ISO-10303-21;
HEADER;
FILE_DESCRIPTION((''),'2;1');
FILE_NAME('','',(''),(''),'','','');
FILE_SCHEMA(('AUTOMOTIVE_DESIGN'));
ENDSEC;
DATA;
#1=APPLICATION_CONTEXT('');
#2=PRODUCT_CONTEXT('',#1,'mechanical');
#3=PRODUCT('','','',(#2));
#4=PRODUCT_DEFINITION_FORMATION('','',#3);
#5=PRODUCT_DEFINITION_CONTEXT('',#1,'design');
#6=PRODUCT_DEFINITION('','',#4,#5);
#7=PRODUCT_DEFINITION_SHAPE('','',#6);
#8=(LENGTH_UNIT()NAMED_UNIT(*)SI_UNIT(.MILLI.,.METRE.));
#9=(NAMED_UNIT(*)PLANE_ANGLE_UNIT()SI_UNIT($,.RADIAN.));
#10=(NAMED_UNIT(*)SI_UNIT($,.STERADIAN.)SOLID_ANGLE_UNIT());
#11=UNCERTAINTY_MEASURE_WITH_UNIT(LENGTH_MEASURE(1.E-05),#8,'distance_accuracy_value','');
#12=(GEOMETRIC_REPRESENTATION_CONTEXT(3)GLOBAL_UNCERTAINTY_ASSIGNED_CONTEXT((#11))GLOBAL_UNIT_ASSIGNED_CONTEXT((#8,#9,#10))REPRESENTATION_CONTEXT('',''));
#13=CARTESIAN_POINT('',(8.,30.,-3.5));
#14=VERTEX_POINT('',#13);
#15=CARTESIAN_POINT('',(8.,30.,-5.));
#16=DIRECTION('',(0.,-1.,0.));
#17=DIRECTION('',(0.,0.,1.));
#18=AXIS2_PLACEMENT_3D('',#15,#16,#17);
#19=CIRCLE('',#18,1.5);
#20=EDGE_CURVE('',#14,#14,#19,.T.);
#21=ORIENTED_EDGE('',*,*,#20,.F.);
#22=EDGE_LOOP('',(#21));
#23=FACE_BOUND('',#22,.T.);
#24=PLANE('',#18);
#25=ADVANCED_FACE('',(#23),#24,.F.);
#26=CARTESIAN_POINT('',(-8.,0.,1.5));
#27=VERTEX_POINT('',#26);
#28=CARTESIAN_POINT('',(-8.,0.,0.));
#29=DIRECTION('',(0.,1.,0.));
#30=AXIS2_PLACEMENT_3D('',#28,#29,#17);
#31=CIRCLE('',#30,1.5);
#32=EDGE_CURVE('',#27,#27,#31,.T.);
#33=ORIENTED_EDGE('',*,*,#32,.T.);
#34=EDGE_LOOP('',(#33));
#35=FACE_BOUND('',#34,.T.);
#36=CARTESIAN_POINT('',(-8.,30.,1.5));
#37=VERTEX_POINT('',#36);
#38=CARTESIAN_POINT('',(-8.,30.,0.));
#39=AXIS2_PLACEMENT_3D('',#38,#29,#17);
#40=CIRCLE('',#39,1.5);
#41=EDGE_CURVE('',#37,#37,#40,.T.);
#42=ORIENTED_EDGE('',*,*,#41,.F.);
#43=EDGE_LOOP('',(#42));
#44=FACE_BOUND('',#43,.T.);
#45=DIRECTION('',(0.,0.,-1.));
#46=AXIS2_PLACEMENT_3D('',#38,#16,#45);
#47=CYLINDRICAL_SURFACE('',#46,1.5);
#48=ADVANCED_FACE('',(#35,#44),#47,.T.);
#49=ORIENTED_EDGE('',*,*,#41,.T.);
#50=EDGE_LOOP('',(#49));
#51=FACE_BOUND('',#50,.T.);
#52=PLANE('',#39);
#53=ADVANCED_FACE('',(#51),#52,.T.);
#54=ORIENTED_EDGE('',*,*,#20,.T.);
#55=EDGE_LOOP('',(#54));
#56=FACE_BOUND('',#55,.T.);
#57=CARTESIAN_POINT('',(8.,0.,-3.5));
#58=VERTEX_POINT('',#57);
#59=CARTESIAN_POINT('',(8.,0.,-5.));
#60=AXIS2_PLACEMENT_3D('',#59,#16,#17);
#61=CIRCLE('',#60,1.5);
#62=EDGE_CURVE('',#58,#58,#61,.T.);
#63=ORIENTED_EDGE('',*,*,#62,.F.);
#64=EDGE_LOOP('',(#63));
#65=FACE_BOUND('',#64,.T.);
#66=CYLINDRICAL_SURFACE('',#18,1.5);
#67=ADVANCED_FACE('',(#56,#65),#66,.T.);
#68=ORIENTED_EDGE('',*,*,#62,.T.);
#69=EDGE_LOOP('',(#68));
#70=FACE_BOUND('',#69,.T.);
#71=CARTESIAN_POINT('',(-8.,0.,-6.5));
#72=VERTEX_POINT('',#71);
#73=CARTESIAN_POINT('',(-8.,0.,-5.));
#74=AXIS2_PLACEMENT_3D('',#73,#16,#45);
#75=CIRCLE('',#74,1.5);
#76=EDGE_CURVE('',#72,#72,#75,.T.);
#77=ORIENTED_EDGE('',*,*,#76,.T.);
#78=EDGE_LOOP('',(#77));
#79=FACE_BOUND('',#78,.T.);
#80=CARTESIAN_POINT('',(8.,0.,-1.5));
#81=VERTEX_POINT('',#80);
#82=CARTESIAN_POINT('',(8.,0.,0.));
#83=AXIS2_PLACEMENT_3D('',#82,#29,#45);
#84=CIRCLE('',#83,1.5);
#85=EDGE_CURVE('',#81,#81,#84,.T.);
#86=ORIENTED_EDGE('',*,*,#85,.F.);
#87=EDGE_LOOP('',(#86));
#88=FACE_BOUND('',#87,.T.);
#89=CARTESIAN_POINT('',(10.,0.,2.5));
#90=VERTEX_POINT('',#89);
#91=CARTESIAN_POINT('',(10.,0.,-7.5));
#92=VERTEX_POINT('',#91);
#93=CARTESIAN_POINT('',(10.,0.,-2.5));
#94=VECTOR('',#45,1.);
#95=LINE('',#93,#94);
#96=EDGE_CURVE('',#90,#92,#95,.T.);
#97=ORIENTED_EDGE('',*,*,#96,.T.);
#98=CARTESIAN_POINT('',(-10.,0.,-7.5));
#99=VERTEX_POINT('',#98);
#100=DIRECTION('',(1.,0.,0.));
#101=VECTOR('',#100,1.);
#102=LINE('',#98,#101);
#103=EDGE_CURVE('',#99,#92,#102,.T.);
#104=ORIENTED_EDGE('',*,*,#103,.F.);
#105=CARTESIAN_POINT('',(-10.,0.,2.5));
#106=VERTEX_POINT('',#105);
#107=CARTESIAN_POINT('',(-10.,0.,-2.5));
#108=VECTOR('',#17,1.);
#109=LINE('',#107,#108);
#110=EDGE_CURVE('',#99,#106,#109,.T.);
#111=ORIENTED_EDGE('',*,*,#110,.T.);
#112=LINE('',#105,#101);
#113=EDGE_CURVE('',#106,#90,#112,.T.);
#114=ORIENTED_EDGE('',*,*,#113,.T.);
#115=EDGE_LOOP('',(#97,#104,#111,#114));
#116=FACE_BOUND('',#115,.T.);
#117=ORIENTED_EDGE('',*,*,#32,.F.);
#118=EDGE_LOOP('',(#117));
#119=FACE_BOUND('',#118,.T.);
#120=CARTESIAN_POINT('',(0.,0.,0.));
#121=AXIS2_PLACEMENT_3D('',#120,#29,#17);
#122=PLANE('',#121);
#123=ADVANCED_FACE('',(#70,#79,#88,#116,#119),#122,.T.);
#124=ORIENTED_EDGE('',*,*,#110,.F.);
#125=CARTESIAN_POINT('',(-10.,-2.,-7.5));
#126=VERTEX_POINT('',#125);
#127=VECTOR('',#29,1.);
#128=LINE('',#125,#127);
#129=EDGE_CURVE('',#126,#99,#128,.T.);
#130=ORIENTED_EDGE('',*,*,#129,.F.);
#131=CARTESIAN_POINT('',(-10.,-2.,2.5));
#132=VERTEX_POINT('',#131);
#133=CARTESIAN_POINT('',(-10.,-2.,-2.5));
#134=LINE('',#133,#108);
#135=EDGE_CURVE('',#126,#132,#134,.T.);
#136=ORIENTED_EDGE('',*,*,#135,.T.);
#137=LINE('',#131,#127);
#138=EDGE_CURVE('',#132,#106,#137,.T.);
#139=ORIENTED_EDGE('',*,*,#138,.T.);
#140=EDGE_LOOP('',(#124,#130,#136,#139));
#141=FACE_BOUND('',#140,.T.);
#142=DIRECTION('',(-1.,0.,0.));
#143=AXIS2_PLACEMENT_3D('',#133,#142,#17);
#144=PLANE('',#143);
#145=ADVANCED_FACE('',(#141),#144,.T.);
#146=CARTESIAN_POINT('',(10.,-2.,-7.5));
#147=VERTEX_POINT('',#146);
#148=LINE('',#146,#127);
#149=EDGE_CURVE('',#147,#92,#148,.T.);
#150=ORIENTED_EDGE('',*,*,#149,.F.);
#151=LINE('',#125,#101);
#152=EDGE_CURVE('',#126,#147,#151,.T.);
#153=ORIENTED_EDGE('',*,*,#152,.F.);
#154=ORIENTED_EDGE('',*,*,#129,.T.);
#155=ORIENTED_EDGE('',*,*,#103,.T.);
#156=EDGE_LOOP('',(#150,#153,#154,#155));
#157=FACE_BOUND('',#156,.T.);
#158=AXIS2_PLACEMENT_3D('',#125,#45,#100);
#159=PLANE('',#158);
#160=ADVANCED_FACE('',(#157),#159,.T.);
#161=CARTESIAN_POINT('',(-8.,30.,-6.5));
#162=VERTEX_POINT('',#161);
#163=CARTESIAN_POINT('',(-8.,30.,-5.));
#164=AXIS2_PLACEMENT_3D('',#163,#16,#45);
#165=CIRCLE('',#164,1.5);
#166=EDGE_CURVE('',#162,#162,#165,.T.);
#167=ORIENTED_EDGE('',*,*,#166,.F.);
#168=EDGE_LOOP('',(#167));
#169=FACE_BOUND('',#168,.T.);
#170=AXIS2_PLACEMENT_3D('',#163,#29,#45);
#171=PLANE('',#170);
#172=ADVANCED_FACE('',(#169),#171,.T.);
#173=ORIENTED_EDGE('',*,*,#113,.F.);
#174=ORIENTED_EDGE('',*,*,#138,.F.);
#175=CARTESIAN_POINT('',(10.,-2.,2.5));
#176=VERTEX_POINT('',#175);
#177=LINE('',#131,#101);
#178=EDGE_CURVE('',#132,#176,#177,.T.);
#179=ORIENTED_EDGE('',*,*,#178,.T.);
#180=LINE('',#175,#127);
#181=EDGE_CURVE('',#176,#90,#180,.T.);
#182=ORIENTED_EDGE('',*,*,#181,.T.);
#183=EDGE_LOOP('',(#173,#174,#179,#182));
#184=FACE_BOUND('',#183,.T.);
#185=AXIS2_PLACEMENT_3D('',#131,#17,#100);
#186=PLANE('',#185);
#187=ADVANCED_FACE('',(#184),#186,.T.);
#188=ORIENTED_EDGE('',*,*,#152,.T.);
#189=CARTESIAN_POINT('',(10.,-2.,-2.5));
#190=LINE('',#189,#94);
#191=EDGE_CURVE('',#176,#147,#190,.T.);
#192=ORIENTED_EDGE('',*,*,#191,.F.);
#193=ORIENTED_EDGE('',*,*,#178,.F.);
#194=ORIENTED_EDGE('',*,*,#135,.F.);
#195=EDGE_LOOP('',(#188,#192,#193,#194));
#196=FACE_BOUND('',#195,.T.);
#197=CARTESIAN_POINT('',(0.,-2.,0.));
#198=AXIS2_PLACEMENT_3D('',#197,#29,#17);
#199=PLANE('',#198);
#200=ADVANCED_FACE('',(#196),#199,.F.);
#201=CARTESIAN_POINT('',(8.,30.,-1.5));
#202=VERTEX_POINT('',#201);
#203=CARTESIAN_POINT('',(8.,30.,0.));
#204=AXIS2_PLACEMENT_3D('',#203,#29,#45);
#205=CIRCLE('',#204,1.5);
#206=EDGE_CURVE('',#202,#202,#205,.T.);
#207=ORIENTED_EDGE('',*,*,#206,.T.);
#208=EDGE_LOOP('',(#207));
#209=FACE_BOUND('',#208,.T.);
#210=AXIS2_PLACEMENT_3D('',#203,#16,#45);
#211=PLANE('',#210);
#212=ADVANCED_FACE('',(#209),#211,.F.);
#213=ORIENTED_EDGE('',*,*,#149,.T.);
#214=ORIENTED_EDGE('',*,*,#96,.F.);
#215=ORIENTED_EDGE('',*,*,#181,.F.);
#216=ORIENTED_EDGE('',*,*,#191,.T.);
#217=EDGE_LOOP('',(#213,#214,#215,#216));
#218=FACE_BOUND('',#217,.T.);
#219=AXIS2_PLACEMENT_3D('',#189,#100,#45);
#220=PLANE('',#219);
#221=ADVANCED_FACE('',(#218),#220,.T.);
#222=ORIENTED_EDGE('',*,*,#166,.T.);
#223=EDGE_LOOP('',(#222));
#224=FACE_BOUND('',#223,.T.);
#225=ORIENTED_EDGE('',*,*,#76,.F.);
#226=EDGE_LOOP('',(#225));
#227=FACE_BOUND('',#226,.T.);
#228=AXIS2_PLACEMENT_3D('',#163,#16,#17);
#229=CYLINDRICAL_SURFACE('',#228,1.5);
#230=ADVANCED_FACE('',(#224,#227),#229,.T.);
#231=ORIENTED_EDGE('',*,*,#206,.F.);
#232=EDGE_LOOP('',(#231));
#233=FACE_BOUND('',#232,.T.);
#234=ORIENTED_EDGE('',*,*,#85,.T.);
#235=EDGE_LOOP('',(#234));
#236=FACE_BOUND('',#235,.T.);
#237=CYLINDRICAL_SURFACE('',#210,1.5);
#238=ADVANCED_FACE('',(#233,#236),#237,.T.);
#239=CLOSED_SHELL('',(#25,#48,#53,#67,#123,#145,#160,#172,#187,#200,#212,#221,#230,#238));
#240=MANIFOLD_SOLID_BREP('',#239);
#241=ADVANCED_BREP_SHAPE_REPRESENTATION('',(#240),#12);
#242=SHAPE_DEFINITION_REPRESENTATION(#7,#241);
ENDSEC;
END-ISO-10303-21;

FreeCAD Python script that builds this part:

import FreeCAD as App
import Part
import Sketcher
from FreeCAD import Vector
Q = App.Units.Quantity

doc = App.newDocument("Part")
body = doc.addObject("PartDesign::Body", "Body")

# Sketch on XZ plane
sketch1 = doc.addObject("Sketcher::SketchObject", "Sketch")
body.addObject(sketch1)
sketch1.AttachmentSupport = (doc.XZ_Plane, [""])
sketch1.MapMode = "FlatFace"
sketch1.addGeometry(Part.LineSegment(Vector(-10, -2, 0), Vector(-10, 2, 0)), False)
sketch1.addGeometry(Part.LineSegment(Vector(-10, 2, 0), Vector(10, 2, 0)), False)
sketch1.addGeometry(Part.LineSegment(Vector(10, 2, 0), Vector(10, -2, 0)), False)
sketch1.addGeometry(Part.LineSegment(Vector(10, -2, 0), Vector(-10, -2, 0)), False)
sketch1.addConstraint(Sketcher.Constraint("Coincident", 0, 2, 1, 1))
sketch1.addConstraint(Sketcher.Constraint("Coincident", 1, 2, 2, 1))
sketch1.addConstraint(Sketcher.Constraint("Coincident", 2, 2, 3, 1))
sketch1.addConstraint(Sketcher.Constraint("Coincident", 3, 2, 0, 1))
sketch1.addConstraint(Sketcher.Constraint("Vertical", 0))
sketch1.addConstraint(Sketcher.Constraint("Horizontal", 1))
sketch1.addConstraint(Sketcher.Constraint("Vertical", 2))
sketch1.addConstraint(Sketcher.Constraint("Horizontal", 3))
sketch1.addConstraint(Sketcher.Constraint("Symmetric", 0, 2, 2, 2, -1, 1))
sketch1.addConstraint(Sketcher.Constraint("DistanceX", 1, 1, 1, 2, Q("20 mm")))
sketch1.addConstraint(Sketcher.Constraint("DistanceY", 0, 1, 0, 2, Q("5 mm")))
pad1 = doc.addObject("PartDesign::Pad", "Pad")
body.addObject(pad1)
pad1.Profile = sketch1
pad1.Length = 2

# Sketch on XZ plane
sketch2 = doc.addObject("Sketcher::SketchObject", "Sketch001")
body.addObject(sketch2)
sketch2.AttachmentSupport = (doc.XZ_Plane, [""])
sketch2.MapMode = "FlatFace"
sketch2.addGeometry(Part.Circle(Vector(-8, 0, 0), Vector(0, 0, 1), 1.5), False)
sketch2.addGeometry(Part.Circle(Vector(8, 0, 0), Vector(0, 0, 1), 1.5), False)
sketch2.addConstraint(Sketcher.Constraint("Equal", 0, 1))
sketch2.addConstraint(Sketcher.Constraint("Symmetric", 0, 3, 1, 3, -1, 1))
sketch2.addConstraint(Sketcher.Constraint("PointOnObject", 0, 3, -1))
sketch2.addConstraint(Sketcher.Constraint("Diameter", 0, Q("3 mm")))
sketch2.addConstraint(Sketcher.Constraint("DistanceX", 0, 3, -1, 1, Q("8 mm")))
pad2 = doc.addObject("PartDesign::Pad", "Pad001")
body.addObject(pad2)
pad2.Profile = sketch2
pad2.Length = 30
pad2.Reversed = True
doc.recompute()

datumplane = doc.addObject("PartDesign::Plane", "DatumPlane")
body.addObject(datumplane)
datumplane.AttachmentSupport = (doc.XY_Plane, [""])
datumplane.MapMode = "FlatFace"
datumplane.AttachmentOffset = App.Placement(Vector(0, 0, -2.5), App.Rotation())
mirrored = doc.addObject("PartDesign::Mirrored", "Mirrored")
body.addObject(mirrored)
mirrored.Originals = [pad1, pad2]
mirrored.MirrorPlane = (datumplane, [""])
body.Tip = mirrored

doc.recompute()
